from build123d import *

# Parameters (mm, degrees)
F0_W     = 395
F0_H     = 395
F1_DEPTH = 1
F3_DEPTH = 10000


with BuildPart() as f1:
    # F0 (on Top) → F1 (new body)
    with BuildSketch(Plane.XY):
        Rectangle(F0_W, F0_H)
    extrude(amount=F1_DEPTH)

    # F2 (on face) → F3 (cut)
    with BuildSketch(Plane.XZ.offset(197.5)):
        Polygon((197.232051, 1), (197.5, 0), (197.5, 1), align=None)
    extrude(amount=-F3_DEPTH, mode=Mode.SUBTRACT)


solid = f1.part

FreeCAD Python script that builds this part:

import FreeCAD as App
import Part
import Sketcher
Q = App.Units.Quantity


def add_polygon(sketch, points):
    """Adds a closed chain of lines whose ends are joined by coincident constraints."""
    first, n = sketch.GeometryCount, len(points)
    for a, b in zip(points, points[1:] + points[:1]):
        sketch.addGeometry(Part.LineSegment(App.Vector(*a, 0), App.Vector(*b, 0)), False)
    for i in range(n):
        sketch.addConstraint(Sketcher.Constraint("Coincident", first + i, 2, first + (i + 1) % n, 1))

doc = App.newDocument("Part")
body = doc.addObject("PartDesign::Body", "Body")

sketch1 = doc.addObject("Sketcher::SketchObject", "Sketch")
body.addObject(sketch1)
sketch1.AttachmentSupport = (doc.XY_Plane, [""])
sketch1.MapMode = "FlatFace"
add_polygon(sketch1, [(-198, 198), (-198, -198), (198, -198), (198, 198)])
sketch1.addConstraint([
    Sketcher.Constraint("Vertical", 0),
    Sketcher.Constraint("Horizontal", 1),
    Sketcher.Constraint("Vertical", 2),
    Sketcher.Constraint("Horizontal", 3),
    Sketcher.Constraint("Symmetric", 0, 2, 2, 2, -1, 1),
    Sketcher.Constraint("Equal", 3, 0),
    Sketcher.Constraint("DistanceX", 1, 1, 1, 2, Q("395 mm")),
])
pad1 = doc.addObject("PartDesign::Pad", "Pad")
body.addObject(pad1)
pad1.Profile = sketch1
pad1.Length = 1

sketch2 = doc.addObject("Sketcher::SketchObject", "Sketch001")
body.addObject(sketch2)
sketch2.AttachmentSupport = (doc.XZ_Plane, [""])
sketch2.MapMode = "FlatFace"
sketch2.AttachmentOffset = App.Placement(App.Vector(0, 0, 197.5), App.Rotation())
add_polygon(sketch2, [(197.23, 1), (197.5, 0), (197.5, 1)])
sketch2.addConstraint([
    Sketcher.Constraint("Vertical", 1),
    Sketcher.Constraint("Horizontal", 2),
    Sketcher.Constraint("PointOnObject", 0, 2, -1),
    Sketcher.Constraint("DistanceY", 1, 1, 1, 2, Q("1 mm")),
    Sketcher.Constraint("Angle", 0, Q("-75.00001 deg")),
    Sketcher.Constraint("DistanceX", -1, 1, 0, 2, Q("197.5 mm")),
])
pocket1 = doc.addObject("PartDesign::Pocket", "Pocket")
body.addObject(pocket1)
pocket1.Profile = sketch2
pocket1.Length = 10000

doc.recompute()
